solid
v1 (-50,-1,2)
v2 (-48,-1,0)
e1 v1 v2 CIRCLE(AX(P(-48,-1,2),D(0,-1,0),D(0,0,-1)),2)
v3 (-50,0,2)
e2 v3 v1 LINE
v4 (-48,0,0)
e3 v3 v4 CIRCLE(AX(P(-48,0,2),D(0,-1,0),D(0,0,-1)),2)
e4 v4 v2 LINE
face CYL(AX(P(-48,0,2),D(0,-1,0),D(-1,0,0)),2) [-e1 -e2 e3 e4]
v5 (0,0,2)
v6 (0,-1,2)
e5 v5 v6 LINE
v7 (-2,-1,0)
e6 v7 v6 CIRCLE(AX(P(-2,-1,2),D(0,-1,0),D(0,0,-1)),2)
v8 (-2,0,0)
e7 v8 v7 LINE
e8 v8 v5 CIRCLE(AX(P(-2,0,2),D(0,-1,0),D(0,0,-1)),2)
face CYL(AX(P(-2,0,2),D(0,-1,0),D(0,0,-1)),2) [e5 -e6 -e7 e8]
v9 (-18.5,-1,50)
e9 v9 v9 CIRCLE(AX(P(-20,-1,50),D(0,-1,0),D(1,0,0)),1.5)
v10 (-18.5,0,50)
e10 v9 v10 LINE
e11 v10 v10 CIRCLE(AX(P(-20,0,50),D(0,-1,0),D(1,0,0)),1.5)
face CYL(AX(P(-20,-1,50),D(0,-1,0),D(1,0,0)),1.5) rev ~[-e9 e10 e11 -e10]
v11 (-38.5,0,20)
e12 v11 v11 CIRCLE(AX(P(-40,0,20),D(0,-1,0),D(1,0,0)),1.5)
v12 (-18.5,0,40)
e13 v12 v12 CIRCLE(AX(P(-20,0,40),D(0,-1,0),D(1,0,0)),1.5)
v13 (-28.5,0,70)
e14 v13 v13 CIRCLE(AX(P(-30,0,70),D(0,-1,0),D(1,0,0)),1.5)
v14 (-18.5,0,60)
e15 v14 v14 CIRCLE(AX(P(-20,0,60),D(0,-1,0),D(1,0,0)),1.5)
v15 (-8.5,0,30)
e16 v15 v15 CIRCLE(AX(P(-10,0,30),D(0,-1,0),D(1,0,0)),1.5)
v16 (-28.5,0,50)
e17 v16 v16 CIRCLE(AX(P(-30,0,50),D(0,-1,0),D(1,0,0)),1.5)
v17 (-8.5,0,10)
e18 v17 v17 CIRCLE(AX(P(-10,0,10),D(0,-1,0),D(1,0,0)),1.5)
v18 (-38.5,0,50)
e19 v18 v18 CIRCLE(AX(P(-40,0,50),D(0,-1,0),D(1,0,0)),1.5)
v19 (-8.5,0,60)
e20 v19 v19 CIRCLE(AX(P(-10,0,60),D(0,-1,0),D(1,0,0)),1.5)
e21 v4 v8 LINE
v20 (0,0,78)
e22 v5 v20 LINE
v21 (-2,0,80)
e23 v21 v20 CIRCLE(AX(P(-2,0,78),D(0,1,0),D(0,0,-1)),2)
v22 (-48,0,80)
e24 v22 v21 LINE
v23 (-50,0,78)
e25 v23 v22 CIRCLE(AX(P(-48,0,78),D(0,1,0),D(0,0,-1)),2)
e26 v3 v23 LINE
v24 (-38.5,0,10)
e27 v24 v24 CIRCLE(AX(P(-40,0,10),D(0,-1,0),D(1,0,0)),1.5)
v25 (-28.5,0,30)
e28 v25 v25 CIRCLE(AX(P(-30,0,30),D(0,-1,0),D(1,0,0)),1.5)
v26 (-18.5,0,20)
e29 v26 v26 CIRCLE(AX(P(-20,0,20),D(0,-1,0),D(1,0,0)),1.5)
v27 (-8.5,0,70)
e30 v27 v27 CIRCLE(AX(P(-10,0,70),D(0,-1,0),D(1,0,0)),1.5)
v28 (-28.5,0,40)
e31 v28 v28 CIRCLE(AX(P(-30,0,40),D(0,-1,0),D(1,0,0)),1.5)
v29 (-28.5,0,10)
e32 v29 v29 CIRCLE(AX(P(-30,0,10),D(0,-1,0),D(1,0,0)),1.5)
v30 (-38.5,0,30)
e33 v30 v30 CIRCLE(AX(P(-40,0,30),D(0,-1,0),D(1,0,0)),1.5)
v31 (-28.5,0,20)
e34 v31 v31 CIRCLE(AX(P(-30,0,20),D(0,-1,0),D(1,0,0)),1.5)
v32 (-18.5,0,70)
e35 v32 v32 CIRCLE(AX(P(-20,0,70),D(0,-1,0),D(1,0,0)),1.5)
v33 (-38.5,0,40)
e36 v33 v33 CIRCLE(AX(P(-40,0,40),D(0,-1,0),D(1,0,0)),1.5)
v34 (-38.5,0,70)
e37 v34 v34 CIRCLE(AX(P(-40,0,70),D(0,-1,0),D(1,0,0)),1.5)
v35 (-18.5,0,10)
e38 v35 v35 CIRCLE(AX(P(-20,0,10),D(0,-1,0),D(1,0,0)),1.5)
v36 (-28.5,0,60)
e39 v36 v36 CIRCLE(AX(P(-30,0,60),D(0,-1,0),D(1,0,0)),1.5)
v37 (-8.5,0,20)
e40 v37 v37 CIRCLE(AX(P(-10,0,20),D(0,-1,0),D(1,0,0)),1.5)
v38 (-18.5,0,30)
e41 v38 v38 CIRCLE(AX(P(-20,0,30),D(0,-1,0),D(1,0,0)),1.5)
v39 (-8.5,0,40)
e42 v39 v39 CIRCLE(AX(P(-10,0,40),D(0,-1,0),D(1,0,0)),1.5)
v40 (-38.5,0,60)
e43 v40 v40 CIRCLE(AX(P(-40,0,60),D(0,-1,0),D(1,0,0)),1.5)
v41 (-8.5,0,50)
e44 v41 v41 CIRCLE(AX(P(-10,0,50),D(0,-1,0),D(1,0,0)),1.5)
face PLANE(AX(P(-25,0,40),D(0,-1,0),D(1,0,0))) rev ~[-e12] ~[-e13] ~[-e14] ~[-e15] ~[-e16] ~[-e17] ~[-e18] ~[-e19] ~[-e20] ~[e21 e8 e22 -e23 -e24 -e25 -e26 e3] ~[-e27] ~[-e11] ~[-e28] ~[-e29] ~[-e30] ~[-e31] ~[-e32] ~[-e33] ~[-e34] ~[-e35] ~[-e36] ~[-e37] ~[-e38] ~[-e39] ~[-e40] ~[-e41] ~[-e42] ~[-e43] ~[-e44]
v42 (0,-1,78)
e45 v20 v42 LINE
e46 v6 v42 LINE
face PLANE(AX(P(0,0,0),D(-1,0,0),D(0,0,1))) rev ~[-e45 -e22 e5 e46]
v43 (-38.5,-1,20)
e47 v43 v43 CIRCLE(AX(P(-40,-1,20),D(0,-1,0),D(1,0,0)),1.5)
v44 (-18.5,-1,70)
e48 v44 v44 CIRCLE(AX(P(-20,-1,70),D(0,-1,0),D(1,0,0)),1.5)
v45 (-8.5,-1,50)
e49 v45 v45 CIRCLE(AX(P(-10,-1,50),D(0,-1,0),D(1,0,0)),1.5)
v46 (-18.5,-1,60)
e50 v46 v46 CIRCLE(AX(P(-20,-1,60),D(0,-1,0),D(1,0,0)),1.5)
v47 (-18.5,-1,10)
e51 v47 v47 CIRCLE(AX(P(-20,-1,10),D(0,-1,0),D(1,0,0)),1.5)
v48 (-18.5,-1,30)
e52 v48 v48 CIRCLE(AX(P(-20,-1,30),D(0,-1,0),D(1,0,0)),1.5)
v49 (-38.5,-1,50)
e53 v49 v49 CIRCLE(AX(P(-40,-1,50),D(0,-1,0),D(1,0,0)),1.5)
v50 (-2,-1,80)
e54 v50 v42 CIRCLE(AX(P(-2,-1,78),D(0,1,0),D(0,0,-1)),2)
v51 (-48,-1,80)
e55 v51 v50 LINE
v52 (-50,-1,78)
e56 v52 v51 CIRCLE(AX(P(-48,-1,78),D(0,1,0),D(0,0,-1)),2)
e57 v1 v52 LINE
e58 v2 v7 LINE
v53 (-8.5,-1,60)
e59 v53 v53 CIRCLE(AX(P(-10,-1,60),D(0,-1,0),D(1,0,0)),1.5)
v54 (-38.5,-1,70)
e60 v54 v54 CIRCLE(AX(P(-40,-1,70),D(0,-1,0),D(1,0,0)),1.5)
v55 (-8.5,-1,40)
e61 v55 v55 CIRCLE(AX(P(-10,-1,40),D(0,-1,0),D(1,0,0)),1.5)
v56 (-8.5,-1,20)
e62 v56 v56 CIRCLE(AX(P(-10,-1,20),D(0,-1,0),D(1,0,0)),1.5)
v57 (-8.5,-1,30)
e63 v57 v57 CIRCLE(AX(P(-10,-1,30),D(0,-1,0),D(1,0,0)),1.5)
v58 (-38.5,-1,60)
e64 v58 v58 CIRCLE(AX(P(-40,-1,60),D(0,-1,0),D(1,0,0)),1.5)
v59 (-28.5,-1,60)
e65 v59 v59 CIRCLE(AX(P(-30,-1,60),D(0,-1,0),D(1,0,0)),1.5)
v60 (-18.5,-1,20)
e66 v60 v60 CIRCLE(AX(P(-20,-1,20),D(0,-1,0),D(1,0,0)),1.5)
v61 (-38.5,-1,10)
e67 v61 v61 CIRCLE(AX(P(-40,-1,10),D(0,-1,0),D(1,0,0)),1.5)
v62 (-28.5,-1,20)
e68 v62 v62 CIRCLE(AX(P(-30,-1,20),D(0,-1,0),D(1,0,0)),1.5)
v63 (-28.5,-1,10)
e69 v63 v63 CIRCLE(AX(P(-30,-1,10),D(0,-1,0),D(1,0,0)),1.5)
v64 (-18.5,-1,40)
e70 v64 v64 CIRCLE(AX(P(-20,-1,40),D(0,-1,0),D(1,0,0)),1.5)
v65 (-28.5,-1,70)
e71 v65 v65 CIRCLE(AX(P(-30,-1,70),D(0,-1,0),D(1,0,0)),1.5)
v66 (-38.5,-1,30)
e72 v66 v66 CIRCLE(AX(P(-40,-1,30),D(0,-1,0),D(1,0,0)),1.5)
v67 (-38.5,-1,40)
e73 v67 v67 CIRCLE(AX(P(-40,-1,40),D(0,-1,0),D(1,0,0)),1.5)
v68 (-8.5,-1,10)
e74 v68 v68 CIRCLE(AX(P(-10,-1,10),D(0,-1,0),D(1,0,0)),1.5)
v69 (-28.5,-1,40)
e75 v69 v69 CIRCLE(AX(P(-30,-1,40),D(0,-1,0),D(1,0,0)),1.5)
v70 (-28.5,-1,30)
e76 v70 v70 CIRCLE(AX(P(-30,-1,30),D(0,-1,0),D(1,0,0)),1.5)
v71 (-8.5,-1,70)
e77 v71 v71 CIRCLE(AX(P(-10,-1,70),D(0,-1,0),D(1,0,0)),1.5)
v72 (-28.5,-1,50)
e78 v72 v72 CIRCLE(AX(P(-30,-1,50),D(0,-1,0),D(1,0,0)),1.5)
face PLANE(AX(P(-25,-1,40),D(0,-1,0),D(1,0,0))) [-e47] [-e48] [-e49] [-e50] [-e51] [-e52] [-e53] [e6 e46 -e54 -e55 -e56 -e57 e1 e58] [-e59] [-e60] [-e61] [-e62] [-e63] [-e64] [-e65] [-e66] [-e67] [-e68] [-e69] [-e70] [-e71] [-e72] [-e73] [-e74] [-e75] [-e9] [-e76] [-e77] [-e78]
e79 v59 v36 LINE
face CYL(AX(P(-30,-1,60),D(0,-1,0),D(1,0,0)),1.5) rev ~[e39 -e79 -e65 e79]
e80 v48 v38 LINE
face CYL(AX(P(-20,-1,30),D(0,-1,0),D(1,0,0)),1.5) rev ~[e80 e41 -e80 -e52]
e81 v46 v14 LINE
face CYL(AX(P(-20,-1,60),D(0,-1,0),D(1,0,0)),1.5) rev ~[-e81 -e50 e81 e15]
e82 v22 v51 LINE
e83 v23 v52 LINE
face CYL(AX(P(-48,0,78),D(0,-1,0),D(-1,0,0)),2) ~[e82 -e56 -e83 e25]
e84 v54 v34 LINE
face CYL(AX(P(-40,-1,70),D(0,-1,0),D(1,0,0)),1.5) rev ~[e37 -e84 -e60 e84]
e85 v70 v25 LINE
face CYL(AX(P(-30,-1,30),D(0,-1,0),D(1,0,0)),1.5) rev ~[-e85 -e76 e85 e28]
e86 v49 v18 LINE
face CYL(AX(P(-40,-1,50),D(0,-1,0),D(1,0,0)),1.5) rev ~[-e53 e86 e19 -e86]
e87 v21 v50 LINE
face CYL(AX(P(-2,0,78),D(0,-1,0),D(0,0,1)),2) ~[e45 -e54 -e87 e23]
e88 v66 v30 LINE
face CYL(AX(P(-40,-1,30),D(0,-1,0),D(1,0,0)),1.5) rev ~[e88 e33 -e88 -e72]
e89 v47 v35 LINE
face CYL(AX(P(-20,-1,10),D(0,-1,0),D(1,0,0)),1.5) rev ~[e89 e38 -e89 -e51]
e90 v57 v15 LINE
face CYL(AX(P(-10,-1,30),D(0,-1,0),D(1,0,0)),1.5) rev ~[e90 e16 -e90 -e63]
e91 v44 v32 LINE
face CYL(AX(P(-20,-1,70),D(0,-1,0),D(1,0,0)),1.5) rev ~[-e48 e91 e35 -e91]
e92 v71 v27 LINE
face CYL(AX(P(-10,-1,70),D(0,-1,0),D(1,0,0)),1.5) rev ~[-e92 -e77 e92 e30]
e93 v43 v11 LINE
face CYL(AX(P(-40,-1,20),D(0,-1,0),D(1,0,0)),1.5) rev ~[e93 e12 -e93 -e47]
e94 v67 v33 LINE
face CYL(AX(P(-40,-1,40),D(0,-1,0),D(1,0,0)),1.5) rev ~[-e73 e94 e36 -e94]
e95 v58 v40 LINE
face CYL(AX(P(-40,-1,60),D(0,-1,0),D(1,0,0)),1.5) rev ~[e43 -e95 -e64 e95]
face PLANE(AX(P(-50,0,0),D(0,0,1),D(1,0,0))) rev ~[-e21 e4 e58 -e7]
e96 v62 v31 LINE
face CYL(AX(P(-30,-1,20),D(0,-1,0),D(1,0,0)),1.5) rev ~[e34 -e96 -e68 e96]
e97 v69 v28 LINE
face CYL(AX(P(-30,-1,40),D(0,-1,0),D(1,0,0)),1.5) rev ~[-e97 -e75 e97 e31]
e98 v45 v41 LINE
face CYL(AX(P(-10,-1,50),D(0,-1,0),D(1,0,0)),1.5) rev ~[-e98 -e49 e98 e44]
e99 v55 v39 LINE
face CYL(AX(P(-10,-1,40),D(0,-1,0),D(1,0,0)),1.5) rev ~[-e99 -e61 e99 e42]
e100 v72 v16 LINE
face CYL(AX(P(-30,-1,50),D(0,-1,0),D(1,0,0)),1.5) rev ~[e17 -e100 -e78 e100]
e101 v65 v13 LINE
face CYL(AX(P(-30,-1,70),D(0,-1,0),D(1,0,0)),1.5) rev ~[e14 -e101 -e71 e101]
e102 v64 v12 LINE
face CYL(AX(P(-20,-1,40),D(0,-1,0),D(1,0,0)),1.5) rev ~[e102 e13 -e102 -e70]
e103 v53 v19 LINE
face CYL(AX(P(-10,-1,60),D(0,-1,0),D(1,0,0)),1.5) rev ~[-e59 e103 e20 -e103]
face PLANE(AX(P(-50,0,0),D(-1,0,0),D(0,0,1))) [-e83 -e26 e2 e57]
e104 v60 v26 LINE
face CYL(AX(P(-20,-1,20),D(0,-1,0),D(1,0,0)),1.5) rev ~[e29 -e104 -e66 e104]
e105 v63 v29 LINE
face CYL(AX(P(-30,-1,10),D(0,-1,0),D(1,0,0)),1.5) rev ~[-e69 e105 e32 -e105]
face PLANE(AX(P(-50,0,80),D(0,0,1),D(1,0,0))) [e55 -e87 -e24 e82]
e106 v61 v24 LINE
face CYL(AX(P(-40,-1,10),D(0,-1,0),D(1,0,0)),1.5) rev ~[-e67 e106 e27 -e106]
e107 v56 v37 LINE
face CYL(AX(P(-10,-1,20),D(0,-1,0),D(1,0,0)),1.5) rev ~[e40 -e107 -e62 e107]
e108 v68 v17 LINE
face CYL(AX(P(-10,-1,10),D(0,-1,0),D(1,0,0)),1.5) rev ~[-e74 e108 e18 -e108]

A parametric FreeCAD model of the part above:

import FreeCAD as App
import Part
import Sketcher

V = App.Vector


def edges_at(feature, points):
    """Names of the edges that pass closest to the given points."""
    edges = feature.Shape.Edges
    near = lambda p: min(range(len(edges)), key=lambda i: edges[i].distToShape(Part.Vertex(*p))[0])
    return sorted({f"Edge{near(p) + 1}" for p in points})

doc = App.newDocument("Part")
body = doc.addObject("PartDesign::Body", "Body")

sketch1 = doc.addObject("Sketcher::SketchObject", "Sketch")
body.addObject(sketch1)
sketch1.AttachmentSupport = (doc.XZ_Plane, [""])
sketch1.MapMode = "FlatFace"
sketch1.addGeometry(Part.LineSegment(V(-50, 80, 0), V(-50, 0, 0)), False)
sketch1.addGeometry(Part.LineSegment(V(-50, 0, 0), V(0, 0, 0)), False)
sketch1.addGeometry(Part.LineSegment(V(0, 0, 0), V(0, 80, 0)), False)
sketch1.addGeometry(Part.LineSegment(V(0, 80, 0), V(-50, 80, 0)), False)
sketch1.addConstraint(Sketcher.Constraint("Coincident", 0, 2, 1, 1))
sketch1.addConstraint(Sketcher.Constraint("Coincident", 1, 2, 2, 1))
sketch1.addConstraint(Sketcher.Constraint("Coincident", 2, 2, 3, 1))
sketch1.addConstraint(Sketcher.Constraint("Coincident", 3, 2, 0, 1))
sketch1.addConstraint(Sketcher.Constraint("Vertical", 0))
sketch1.addConstraint(Sketcher.Constraint("Horizontal", 1))
sketch1.addConstraint(Sketcher.Constraint("Vertical", 2))
sketch1.addConstraint(Sketcher.Constraint("Horizontal", 3))
sketch1.addConstraint(Sketcher.Constraint("Coincident", 1, 2, -1, 1))
sketch1.addConstraint(Sketcher.Constraint("DistanceX", 1, 1, 1, 2, 50.0))
sketch1.addConstraint(Sketcher.Constraint("DistanceY", 0, 2, 0, 1, 80.0))
pad1 = doc.addObject("PartDesign::Pad", "Pad")
body.addObject(pad1)
pad1.Profile = sketch1
pad1.Length = 1

sketch2 = doc.addObject("Sketcher::SketchObject", "Sketch001")
body.addObject(sketch2)
sketch2.AttachmentSupport = (doc.XZ_Plane, [""])
sketch2.MapMode = "FlatFace"
sketch2.AttachmentOffset = App.Placement(V(0, 0, 1), App.Rotation())
sketch2.addGeometry(Part.Circle(V(-40, 70, 0), V(0, 0, 1), 1.5), False)
sketch2.addGeometry(Part.Circle(V(-30, 70, 0), V(0, 0, 1), 1.5), False)
sketch2.addGeometry(Part.Circle(V(-20, 70, 0), V(0, 0, 1), 1.5), False)
sketch2.addGeometry(Part.Circle(V(-10, 70, 0), V(0, 0, 1), 1.5), False)
sketch2.addGeometry(Part.Circle(V(-40, 60, 0), V(0, 0, 1), 1.5), False)
sketch2.addGeometry(Part.Circle(V(-30, 60, 0), V(0, 0, 1), 1.5), False)
sketch2.addGeometry(Part.Circle(V(-20, 60, 0), V(0, 0, 1), 1.5), False)
sketch2.addGeometry(Part.Circle(V(-10, 60, 0), V(0, 0, 1), 1.5), False)
sketch2.addGeometry(Part.Circle(V(-40, 50, 0), V(0, 0, 1), 1.5), False)
sketch2.addGeometry(Part.Circle(V(-30, 50, 0), V(0, 0, 1), 1.5), False)
sketch2.addGeometry(Part.Circle(V(-20, 50, 0), V(0, 0, 1), 1.5), False)
sketch2.addGeometry(Part.Circle(V(-10, 50, 0), V(0, 0, 1), 1.5), False)
sketch2.addGeometry(Part.Circle(V(-40, 40, 0), V(0, 0, 1), 1.5), False)
sketch2.addGeometry(Part.Circle(V(-30, 40, 0), V(0, 0, 1), 1.5), False)
sketch2.addGeometry(Part.Circle(V(-20, 40, 0), V(0, 0, 1), 1.5), False)
sketch2.addGeometry(Part.Circle(V(-10, 40, 0), V(0, 0, 1), 1.5), False)
sketch2.addGeometry(Part.Circle(V(-40, 30, 0), V(0, 0, 1), 1.5), False)
sketch2.addGeometry(Part.Circle(V(-30, 30, 0), V(0, 0, 1), 1.5), False)
sketch2.addGeometry(Part.Circle(V(-20, 30, 0), V(0, 0, 1), 1.5), False)
sketch2.addGeometry(Part.Circle(V(-10, 30, 0), V(0, 0, 1), 1.5), False)
sketch2.addGeometry(Part.Circle(V(-40, 20, 0), V(0, 0, 1), 1.5), False)
sketch2.addGeometry(Part.Circle(V(-30, 20, 0), V(0, 0, 1), 1.5), False)
sketch2.addGeometry(Part.Circle(V(-20, 20, 0), V(0, 0, 1), 1.5), False)
sketch2.addGeometry(Part.Circle(V(-10, 20, 0), V(0, 0, 1), 1.5), False)
sketch2.addGeometry(Part.Circle(V(-40, 10, 0), V(0, 0, 1), 1.5), False)
sketch2.addGeometry(Part.Circle(V(-30, 10, 0), V(0, 0, 1), 1.5), False)
sketch2.addGeometry(Part.Circle(V(-20, 10, 0), V(0, 0, 1), 1.5), False)
sketch2.addGeometry(Part.Circle(V(-10, 10, 0), V(0, 0, 1), 1.5), False)
sketch2.addConstraint(Sketcher.Constraint("Equal", 0, 1))
sketch2.addConstraint(Sketcher.Constraint("Equal", 1, 2))
sketch2.addConstraint(Sketcher.Constraint("Equal", 2, 3))
sketch2.addConstraint(Sketcher.Constraint("Equal", 3, 4))
sketch2.addConstraint(Sketcher.Constraint("Equal", 4, 5))
sketch2.addConstraint(Sketcher.Constraint("Equal", 5, 6))
sketch2.addConstraint(Sketcher.Constraint("Equal", 6, 7))
sketch2.addConstraint(Sketcher.Constraint("Equal", 7, 8))
sketch2.addConstraint(Sketcher.Constraint("Equal", 8, 9))
sketch2.addConstraint(Sketcher.Constraint("Equal", 9, 10))
sketch2.addConstraint(Sketcher.Constraint("Equal", 10, 11))
sketch2.addConstraint(Sketcher.Constraint("Equal", 11, 12))
sketch2.addConstraint(Sketcher.Constraint("Equal", 12, 13))
sketch2.addConstraint(Sketcher.Constraint("Equal", 13, 14))
sketch2.addConstraint(Sketcher.Constraint("Equal", 14, 15))
sketch2.addConstraint(Sketcher.Constraint("Equal", 15, 16))
sketch2.addConstraint(Sketcher.Constraint("Equal", 16, 17))
sketch2.addConstraint(Sketcher.Constraint("Equal", 17, 18))
sketch2.addConstraint(Sketcher.Constraint("Equal", 18, 19))
sketch2.addConstraint(Sketcher.Constraint("Equal", 19, 20))
sketch2.addConstraint(Sketcher.Constraint("Equal", 20, 21))
sketch2.addConstraint(Sketcher.Constraint("Equal", 21, 22))
sketch2.addConstraint(Sketcher.Constraint("Equal", 22, 23))
sketch2.addConstraint(Sketcher.Constraint("Equal", 23, 24))
sketch2.addConstraint(Sketcher.Constraint("Equal", 24, 25))
sketch2.addConstraint(Sketcher.Constraint("Equal", 25, 26))
sketch2.addConstraint(Sketcher.Constraint("Equal", 26, 27))
sketch2.addConstraint(Sketcher.Constraint("Horizontal", 0, 3, 1, 3))
sketch2.addConstraint(Sketcher.Constraint("Horizontal", 1, 3, 2, 3))
sketch2.addConstraint(Sketcher.Constraint("Horizontal", 2, 3, 3, 3))
sketch2.addConstraint(Sketcher.Constraint("Horizontal", 4, 3, 5, 3))
sketch2.addConstraint(Sketcher.Constraint("Horizontal", 5, 3, 6, 3))
sketch2.addConstraint(Sketcher.Constraint("Horizontal", 6, 3, 7, 3))
sketch2.addConstraint(Sketcher.Constraint("Horizontal", 8, 3, 9, 3))
sketch2.addConstraint(Sketcher.Constraint("Horizontal", 9, 3, 10, 3))
sketch2.addConstraint(Sketcher.Constraint("Horizontal", 10, 3, 11, 3))
sketch2.addConstraint(Sketcher.Constraint("Horizontal", 12, 3, 13, 3))
sketch2.addConstraint(Sketcher.Constraint("Horizontal", 13, 3, 14, 3))
sketch2.addConstraint(Sketcher.Constraint("Horizontal", 14, 3, 15, 3))
sketch2.addConstraint(Sketcher.Constraint("Horizontal", 16, 3, 17, 3))
sketch2.addConstraint(Sketcher.Constraint("Horizontal", 17, 3, 18, 3))
sketch2.addConstraint(Sketcher.Constraint("Horizontal", 18, 3, 19, 3))
sketch2.addConstraint(Sketcher.Constraint("Horizontal", 20, 3, 21, 3))
sketch2.addConstraint(Sketcher.Constraint("Horizontal", 21, 3, 22, 3))
sketch2.addConstraint(Sketcher.Constraint("Horizontal", 22, 3, 23, 3))
sketch2.addConstraint(Sketcher.Constraint("Horizontal", 24, 3, 25, 3))
sketch2.addConstraint(Sketcher.Constraint("Horizontal", 25, 3, 26, 3))
sketch2.addConstraint(Sketcher.Constraint("Horizontal", 26, 3, 27, 3))
sketch2.addConstraint(Sketcher.Constraint("Vertical", 0, 3, 4, 3))
sketch2.addConstraint(Sketcher.Constraint("Vertical", 1, 3, 5, 3))
sketch2.addConstraint(Sketcher.Constraint("Vertical", 2, 3, 6, 3))
sketch2.addConstraint(Sketcher.Constraint("Vertical", 3, 3, 7, 3))
sketch2.addConstraint(Sketcher.Constraint("Vertical", 4, 3, 8, 3))
sketch2.addConstraint(Sketcher.Constraint("Vertical", 5, 3, 9, 3))
sketch2.addConstraint(Sketcher.Constraint("Vertical", 6, 3, 10, 3))
sketch2.addConstraint(Sketcher.Constraint("Vertical", 7, 3, 11, 3))
sketch2.addConstraint(Sketcher.Constraint("Vertical", 8, 3, 12, 3))
sketch2.addConstraint(Sketcher.Constraint("Vertical", 9, 3, 13, 3))
sketch2.addConstraint(Sketcher.Constraint("Vertical", 10, 3, 14, 3))
sketch2.addConstraint(Sketcher.Constraint("Vertical", 11, 3, 15, 3))
sketch2.addConstraint(Sketcher.Constraint("Vertical", 12, 3, 16, 3))
sketch2.addConstraint(Sketcher.Constraint("Vertical", 13, 3, 17, 3))
sketch2.addConstraint(Sketcher.Constraint("Vertical", 14, 3, 18, 3))
sketch2.addConstraint(Sketcher.Constraint("Vertical", 15, 3, 19, 3))
sketch2.addConstraint(Sketcher.Constraint("Vertical", 16, 3, 20, 3))
sketch2.addConstraint(Sketcher.Constraint("Vertical", 17, 3, 21, 3))
sketch2.addConstraint(Sketcher.Constraint("Vertical", 18, 3, 22, 3))
sketch2.addConstraint(Sketcher.Constraint("Vertical", 19, 3, 23, 3))
sketch2.addConstraint(Sketcher.Constraint("Vertical", 20, 3, 24, 3))
sketch2.addConstraint(Sketcher.Constraint("Vertical", 21, 3, 25, 3))
sketch2.addConstraint(Sketcher.Constraint("Vertical", 22, 3, 26, 3))
sketch2.addConstraint(Sketcher.Constraint("Vertical", 23, 3, 27, 3))
sketch2.addConstraint(Sketcher.Constraint("Diameter", 0, 3.0))
sketch2.addConstraint(Sketcher.Constraint("DistanceX", 0, 3, -1, 1, 40.0))
sketch2.addConstraint(Sketcher.Constraint("DistanceY", -1, 1, 0, 3, 70.0))
sketch2.addConstraint(Sketcher.Constraint("DistanceX", 1, 3, -1, 1, 30.0))
sketch2.addConstraint(Sketcher.Constraint("DistanceX", 2, 3, -1, 1, 20.0))
sketch2.addConstraint(Sketcher.Constraint("DistanceX", 3, 3, -1, 1, 10.0))
sketch2.addConstraint(Sketcher.Constraint("DistanceY", -1, 1, 4, 3, 60.0))
sketch2.addConstraint(Sketcher.Constraint("DistanceY", -1, 1, 8, 3, 50.0))
sketch2.addConstraint(Sketcher.Constraint("DistanceY", -1, 1, 12, 3, 40.0))
sketch2.addConstraint(Sketcher.Constraint("DistanceY", -1, 1, 16, 3, 30.0))
sketch2.addConstraint(Sketcher.Constraint("DistanceY", -1, 1, 20, 3, 20.0))
sketch2.addConstraint(Sketcher.Constraint("DistanceY", -1, 1, 24, 3, 10.0))
pocket1 = doc.addObject("PartDesign::Pocket", "Pocket")
body.addObject(pocket1)
pocket1.Profile = sketch2
pocket1.Length = 25
doc.recompute()

fillet = doc.addObject("PartDesign::Fillet", "Fillet")
body.addObject(fillet)
fillet.Base = (pocket1, edges_at(pocket1, [
    (0, -0.5, 0),
    (0, -0.5, 80),
    (-50, -0.5, 80),
    (-50, -0.5, 0),
]))
fillet.Radius = 2

doc.recompute()
